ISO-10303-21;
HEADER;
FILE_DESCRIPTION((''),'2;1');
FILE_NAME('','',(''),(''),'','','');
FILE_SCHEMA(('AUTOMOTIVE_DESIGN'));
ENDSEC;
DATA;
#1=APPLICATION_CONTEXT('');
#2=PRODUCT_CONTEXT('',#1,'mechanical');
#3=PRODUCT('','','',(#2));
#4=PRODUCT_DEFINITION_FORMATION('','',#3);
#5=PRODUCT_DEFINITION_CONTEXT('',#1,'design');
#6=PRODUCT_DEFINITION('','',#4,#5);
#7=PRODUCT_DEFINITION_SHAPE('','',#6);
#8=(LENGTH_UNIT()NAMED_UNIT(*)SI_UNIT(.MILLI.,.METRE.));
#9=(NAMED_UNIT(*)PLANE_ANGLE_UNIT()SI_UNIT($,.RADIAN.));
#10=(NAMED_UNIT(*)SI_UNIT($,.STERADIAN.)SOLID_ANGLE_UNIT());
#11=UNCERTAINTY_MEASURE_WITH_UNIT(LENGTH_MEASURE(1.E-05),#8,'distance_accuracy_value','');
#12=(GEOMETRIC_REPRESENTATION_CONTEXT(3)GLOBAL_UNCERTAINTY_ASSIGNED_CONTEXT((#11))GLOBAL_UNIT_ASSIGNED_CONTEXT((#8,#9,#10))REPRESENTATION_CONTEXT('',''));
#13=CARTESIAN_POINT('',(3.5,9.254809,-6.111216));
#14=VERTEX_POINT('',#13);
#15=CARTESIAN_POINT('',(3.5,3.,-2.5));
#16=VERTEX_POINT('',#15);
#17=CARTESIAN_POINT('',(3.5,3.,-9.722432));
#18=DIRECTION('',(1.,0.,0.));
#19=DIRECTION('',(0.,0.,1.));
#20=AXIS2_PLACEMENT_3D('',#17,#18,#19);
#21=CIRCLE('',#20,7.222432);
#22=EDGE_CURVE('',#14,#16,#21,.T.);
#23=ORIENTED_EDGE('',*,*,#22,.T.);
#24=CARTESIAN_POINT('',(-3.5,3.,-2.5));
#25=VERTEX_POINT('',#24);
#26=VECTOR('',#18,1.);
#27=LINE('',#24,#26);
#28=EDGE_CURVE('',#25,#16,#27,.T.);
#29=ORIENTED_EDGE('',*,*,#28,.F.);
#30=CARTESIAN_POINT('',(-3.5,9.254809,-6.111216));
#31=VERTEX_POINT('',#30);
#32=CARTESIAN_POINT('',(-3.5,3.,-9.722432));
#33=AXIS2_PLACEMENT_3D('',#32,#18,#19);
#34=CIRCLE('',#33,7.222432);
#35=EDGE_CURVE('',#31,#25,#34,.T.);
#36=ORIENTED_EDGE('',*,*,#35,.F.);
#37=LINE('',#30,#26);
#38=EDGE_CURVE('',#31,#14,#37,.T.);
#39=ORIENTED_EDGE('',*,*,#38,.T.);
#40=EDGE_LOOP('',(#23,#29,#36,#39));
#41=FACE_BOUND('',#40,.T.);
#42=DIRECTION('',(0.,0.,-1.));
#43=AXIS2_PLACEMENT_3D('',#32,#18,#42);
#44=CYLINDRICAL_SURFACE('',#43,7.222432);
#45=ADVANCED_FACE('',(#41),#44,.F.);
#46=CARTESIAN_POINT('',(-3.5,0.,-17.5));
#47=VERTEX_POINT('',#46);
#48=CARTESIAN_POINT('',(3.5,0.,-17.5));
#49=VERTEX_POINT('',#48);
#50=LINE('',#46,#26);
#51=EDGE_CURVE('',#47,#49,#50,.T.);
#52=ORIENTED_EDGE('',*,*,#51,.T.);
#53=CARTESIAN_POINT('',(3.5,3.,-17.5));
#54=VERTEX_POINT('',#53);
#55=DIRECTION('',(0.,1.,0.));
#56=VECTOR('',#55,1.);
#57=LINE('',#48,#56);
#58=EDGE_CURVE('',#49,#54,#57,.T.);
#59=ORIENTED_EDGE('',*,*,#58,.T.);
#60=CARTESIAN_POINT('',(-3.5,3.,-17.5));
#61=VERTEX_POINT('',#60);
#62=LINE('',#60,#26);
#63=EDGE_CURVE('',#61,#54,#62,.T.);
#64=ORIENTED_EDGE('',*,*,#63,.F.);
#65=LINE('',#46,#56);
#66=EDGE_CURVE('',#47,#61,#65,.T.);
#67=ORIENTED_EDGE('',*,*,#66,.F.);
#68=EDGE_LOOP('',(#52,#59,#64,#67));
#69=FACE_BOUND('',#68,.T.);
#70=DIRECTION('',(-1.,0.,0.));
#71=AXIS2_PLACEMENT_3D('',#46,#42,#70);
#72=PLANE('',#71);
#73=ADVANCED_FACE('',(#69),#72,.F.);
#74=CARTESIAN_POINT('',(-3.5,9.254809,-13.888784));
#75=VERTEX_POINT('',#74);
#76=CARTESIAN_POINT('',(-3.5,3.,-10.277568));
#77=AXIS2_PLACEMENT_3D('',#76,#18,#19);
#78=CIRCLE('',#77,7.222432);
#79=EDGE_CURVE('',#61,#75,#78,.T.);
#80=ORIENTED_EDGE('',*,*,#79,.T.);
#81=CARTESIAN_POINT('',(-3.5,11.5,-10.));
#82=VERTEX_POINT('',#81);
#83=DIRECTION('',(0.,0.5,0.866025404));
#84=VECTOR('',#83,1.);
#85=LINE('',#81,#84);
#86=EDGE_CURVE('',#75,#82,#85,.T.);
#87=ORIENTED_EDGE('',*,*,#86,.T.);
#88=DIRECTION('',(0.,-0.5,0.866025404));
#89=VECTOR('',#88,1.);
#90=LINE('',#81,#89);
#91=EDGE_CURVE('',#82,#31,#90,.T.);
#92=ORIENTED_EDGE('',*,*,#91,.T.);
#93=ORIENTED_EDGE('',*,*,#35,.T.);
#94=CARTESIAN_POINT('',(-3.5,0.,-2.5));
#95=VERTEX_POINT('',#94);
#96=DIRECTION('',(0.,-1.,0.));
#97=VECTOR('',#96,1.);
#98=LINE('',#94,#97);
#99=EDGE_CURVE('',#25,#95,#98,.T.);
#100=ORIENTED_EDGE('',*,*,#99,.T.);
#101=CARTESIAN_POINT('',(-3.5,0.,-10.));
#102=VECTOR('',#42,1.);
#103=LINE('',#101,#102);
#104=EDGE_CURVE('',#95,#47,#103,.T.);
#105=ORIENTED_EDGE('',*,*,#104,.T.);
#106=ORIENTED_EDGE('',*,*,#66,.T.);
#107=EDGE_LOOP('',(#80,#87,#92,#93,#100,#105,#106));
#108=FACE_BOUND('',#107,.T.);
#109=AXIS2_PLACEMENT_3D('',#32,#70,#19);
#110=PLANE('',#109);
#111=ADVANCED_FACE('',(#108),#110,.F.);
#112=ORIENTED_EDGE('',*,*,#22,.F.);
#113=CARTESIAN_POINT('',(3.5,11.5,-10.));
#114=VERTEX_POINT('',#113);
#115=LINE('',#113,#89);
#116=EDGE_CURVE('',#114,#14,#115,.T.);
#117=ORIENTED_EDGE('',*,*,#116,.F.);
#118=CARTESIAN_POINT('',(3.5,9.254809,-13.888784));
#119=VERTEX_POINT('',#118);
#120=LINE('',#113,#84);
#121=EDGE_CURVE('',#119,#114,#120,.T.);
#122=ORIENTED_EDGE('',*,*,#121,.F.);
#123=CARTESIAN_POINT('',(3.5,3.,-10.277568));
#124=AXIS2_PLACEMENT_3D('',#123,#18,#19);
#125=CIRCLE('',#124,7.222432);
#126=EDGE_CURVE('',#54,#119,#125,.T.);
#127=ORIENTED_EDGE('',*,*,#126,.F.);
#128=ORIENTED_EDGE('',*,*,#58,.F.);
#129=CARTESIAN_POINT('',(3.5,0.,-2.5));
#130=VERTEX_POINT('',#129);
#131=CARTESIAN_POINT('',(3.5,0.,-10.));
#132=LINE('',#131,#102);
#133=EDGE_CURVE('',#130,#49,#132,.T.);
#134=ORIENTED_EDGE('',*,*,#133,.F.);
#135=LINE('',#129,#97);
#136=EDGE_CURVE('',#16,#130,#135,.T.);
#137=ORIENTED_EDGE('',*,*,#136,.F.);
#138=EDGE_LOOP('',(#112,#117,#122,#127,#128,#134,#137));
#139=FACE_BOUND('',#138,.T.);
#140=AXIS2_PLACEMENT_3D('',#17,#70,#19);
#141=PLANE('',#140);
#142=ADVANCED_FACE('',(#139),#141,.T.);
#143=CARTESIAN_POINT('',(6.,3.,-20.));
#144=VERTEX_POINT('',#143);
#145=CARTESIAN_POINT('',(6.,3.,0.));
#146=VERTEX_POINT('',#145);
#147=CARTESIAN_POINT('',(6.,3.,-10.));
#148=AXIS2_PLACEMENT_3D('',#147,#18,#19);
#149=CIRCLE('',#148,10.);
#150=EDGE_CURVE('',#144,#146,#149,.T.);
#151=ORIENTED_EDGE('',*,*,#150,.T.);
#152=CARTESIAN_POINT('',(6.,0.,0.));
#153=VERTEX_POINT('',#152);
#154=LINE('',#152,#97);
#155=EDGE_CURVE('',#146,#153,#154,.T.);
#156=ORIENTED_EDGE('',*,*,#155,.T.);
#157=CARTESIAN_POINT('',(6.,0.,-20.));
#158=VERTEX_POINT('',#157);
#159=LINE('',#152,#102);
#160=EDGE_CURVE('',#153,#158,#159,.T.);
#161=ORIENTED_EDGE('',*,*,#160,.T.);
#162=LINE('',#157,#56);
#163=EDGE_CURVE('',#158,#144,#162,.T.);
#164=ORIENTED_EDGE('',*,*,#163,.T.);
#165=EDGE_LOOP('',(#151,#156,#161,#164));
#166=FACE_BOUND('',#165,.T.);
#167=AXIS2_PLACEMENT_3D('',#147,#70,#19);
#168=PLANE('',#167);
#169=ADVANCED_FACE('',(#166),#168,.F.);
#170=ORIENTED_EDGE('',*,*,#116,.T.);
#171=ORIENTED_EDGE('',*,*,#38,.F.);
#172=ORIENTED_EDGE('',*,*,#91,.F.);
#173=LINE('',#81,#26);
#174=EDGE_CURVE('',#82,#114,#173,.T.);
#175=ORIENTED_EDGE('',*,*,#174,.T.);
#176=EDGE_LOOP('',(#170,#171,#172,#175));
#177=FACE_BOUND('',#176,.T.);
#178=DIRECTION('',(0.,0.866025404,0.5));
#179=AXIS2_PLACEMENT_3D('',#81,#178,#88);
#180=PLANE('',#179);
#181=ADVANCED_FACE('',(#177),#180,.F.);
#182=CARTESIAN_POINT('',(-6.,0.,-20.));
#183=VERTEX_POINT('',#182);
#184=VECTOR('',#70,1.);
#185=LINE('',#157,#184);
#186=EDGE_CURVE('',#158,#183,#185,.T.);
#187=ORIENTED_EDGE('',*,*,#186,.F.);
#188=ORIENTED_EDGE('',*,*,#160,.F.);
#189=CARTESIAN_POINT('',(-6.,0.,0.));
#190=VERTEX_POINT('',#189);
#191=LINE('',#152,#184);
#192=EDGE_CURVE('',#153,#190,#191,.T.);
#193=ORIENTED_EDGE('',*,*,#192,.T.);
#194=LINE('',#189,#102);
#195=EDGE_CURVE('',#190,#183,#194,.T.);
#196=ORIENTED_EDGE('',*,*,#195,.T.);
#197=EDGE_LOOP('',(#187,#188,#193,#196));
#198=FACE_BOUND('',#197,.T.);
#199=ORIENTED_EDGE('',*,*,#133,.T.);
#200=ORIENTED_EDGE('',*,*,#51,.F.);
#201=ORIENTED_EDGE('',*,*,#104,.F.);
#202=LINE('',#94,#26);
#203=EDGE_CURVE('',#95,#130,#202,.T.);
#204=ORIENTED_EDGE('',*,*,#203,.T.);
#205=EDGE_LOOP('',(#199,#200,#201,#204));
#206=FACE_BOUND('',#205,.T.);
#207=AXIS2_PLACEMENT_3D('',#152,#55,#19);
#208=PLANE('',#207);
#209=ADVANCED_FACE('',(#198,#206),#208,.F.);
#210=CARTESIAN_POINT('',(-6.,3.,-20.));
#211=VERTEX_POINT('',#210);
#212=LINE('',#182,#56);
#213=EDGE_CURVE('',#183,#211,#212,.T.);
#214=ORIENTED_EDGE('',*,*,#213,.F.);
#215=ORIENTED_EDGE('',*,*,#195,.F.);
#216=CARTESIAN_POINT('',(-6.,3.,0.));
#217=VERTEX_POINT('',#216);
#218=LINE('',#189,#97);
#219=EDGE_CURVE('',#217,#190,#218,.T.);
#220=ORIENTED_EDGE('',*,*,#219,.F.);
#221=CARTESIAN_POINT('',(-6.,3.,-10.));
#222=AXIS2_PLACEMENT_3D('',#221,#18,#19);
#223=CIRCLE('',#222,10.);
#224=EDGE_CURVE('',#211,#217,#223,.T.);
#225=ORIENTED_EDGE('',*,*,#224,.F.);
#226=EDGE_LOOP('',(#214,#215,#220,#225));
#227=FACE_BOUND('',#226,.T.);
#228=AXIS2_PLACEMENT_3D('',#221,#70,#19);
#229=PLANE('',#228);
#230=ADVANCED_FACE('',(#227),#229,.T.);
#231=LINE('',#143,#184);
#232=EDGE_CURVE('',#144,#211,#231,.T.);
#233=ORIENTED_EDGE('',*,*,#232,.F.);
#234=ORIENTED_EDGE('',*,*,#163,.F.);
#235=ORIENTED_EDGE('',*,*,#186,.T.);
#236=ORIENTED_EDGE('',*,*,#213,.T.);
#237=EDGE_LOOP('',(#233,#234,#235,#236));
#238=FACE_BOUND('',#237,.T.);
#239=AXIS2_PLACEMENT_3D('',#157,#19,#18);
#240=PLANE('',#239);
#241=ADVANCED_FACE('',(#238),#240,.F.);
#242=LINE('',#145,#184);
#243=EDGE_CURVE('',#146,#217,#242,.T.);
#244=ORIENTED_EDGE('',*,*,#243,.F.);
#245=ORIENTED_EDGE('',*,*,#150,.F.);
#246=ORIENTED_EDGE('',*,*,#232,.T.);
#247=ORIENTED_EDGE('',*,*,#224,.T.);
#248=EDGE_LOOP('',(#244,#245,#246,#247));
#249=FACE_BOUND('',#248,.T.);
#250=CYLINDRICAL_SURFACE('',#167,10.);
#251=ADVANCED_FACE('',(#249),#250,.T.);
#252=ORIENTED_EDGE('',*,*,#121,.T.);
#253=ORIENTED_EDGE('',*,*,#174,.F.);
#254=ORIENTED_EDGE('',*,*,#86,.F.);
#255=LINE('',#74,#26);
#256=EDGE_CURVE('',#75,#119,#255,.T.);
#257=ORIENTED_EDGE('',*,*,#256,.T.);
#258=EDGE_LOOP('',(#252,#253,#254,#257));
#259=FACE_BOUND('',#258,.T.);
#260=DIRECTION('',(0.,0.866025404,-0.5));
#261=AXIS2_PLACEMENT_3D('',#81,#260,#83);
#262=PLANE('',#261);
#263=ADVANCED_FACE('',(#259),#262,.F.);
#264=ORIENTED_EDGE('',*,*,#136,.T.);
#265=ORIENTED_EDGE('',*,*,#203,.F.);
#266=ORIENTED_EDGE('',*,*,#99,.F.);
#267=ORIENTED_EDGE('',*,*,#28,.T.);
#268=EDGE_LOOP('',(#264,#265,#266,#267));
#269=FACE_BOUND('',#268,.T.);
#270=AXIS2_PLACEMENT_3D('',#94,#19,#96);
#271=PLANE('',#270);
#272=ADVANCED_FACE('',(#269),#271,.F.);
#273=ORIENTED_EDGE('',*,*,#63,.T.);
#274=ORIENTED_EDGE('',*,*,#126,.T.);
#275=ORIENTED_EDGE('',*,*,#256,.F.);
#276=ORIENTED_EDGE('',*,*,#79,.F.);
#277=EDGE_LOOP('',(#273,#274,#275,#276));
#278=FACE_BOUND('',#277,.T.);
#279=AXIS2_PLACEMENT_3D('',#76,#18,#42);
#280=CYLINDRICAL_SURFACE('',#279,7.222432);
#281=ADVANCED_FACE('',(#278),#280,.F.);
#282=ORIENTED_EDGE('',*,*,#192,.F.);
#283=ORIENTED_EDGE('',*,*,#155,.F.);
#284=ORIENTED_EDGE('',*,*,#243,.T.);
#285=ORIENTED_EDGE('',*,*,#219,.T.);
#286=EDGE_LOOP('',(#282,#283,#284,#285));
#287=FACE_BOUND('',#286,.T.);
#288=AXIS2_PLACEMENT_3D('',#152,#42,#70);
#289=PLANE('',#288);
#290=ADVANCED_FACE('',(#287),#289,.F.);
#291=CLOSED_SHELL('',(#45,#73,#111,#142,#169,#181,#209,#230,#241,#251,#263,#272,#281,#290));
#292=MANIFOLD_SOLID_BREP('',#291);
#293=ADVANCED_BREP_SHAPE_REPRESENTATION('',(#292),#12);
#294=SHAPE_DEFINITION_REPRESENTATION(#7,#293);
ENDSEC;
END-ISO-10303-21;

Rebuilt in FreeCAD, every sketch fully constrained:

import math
import FreeCAD as App
import Part
import Sketcher
Q = App.Units.Quantity

doc = App.newDocument("Part")
body = doc.addObject("PartDesign::Body", "Body")

sketch1 = body.newObject("Sketcher::SketchObject", "Sketch")
sketch1.AttachmentSupport = (doc.getObject("YZ_Plane"), [""])
sketch1.MapMode = "FlatFace"
sketch1.addGeometry(Part.LineSegment(App.Vector(3, 0, 0), App.Vector(0, 0, 0)), False)
sketch1.addGeometry(Part.LineSegment(App.Vector(0, 0, 0), App.Vector(0, -20, 0)), False)
sketch1.addGeometry(Part.LineSegment(App.Vector(0, -20, 0), App.Vector(3, -20, 0)), False)
sketch1.addGeometry(Part.ArcOfCircle(Part.Circle(App.Vector(3, -10, 0), App.Vector(0, 0, 1), 10), math.radians(-90), math.radians(90)), False)
sketch1.addConstraint(Sketcher.Constraint("Coincident", 0, 2, 1, 1))
sketch1.addConstraint(Sketcher.Constraint("Coincident", 1, 2, 2, 1))
sketch1.addConstraint(Sketcher.Constraint("Tangent", 2, 2, 3, 1))
sketch1.addConstraint(Sketcher.Constraint("Tangent", 3, 2, 0, 1))
sketch1.addConstraint(Sketcher.Constraint("Horizontal", 0))
sketch1.addConstraint(Sketcher.Constraint("Vertical", 1))
sketch1.addConstraint(Sketcher.Constraint("Horizontal", 2))
sketch1.addConstraint(Sketcher.Constraint("Coincident", 0, 2, -1, 1))
sketch1.addConstraint(Sketcher.Constraint("Radius", 3, Q("10 mm")))
sketch1.addConstraint(Sketcher.Constraint("DistanceX", 0, 2, 0, 1, Q("3 mm")))
pad1 = body.newObject("PartDesign::Pad", "Pad")
pad1.Profile = sketch1
pad1.Length = 12
pad1.Midplane = True

sketch2 = body.newObject("Sketcher::SketchObject", "Sketch001")
sketch2.AttachmentSupport = (doc.getObject("YZ_Plane"), [""])
sketch2.MapMode = "FlatFace"
sketch2.addGeometry(Part.LineSegment(App.Vector(0, -17.5, 0), App.Vector(3, -17.5, 0)), False)
sketch2.addGeometry(Part.ArcOfCircle(Part.Circle(App.Vector(3, -10.277568, 0), App.Vector(0, 0, 1), 7.222432), math.radians(-90), math.radians(-30)), False)
sketch2.addGeometry(Part.LineSegment(App.Vector(9.254809, -13.888784, 0), App.Vector(11.5, -10, 0)), False)
sketch2.addGeometry(Part.LineSegment(App.Vector(11.5, -10, 0), App.Vector(9.254809, -6.111216, 0)), False)
sketch2.addGeometry(Part.ArcOfCircle(Part.Circle(App.Vector(3, -9.722432, 0), App.Vector(0, 0, 1), 7.222432), math.radians(30), math.radians(90)), False)
sketch2.addGeometry(Part.LineSegment(App.Vector(3, -2.5, 0), App.Vector(0, -2.5, 0)), False)
sketch2.addGeometry(Part.LineSegment(App.Vector(0, -2.5, 0), App.Vector(0, -17.5, 0)), False)
sketch2.addConstraint(Sketcher.Constraint("Tangent", 0, 2, 1, 1))
sketch2.addConstraint(Sketcher.Constraint("Tangent", 1, 2, 2, 1))
sketch2.addConstraint(Sketcher.Constraint("Coincident", 2, 2, 3, 1))
sketch2.addConstraint(Sketcher.Constraint("Tangent", 3, 2, 4, 1))
sketch2.addConstraint(Sketcher.Constraint("Tangent", 4, 2, 5, 1))
sketch2.addConstraint(Sketcher.Constraint("Coincident", 5, 2, 6, 1))
sketch2.addConstraint(Sketcher.Constraint("Coincident", 6, 2, 0, 1))
sketch2.addConstraint(Sketcher.Constraint("Horizontal", 0))
sketch2.addConstraint(Sketcher.Constraint("Horizontal", 5))
sketch2.addConstraint(Sketcher.Constraint("Vertical", 6))
sketch2.addConstraint(Sketcher.Constraint("Equal", 1, 4))
sketch2.addConstraint(Sketcher.Constraint("PointOnObject", 5, 2, -2))
sketch2.addConstraint(Sketcher.Constraint("Vertical", 1, 3, 4, 3))
sketch2.addConstraint(Sketcher.Constraint("Vertical", 1, 2, 3, 2))
sketch2.addConstraint(Sketcher.Constraint("DistanceX", 0, 1, 0, 2, Q("3 mm")))
sketch2.addConstraint(Sketcher.Constraint("DistanceY", 6, 2, 6, 1, Q("15 mm")))
sketch2.addConstraint(Sketcher.Constraint("Angle", 2, Q("60 deg")))
sketch2.addConstraint(Sketcher.Constraint("DistanceY", 2, 2, -1, 1, Q("10 mm")))
sketch2.addConstraint(Sketcher.Constraint("DistanceX", -1, 1, 2, 2, Q("11.5 mm")))
pocket1 = body.newObject("PartDesign::Pocket", "Pocket")
pocket1.Profile = sketch2
pocket1.Length = 7
pocket1.Midplane = True

doc.recompute()
